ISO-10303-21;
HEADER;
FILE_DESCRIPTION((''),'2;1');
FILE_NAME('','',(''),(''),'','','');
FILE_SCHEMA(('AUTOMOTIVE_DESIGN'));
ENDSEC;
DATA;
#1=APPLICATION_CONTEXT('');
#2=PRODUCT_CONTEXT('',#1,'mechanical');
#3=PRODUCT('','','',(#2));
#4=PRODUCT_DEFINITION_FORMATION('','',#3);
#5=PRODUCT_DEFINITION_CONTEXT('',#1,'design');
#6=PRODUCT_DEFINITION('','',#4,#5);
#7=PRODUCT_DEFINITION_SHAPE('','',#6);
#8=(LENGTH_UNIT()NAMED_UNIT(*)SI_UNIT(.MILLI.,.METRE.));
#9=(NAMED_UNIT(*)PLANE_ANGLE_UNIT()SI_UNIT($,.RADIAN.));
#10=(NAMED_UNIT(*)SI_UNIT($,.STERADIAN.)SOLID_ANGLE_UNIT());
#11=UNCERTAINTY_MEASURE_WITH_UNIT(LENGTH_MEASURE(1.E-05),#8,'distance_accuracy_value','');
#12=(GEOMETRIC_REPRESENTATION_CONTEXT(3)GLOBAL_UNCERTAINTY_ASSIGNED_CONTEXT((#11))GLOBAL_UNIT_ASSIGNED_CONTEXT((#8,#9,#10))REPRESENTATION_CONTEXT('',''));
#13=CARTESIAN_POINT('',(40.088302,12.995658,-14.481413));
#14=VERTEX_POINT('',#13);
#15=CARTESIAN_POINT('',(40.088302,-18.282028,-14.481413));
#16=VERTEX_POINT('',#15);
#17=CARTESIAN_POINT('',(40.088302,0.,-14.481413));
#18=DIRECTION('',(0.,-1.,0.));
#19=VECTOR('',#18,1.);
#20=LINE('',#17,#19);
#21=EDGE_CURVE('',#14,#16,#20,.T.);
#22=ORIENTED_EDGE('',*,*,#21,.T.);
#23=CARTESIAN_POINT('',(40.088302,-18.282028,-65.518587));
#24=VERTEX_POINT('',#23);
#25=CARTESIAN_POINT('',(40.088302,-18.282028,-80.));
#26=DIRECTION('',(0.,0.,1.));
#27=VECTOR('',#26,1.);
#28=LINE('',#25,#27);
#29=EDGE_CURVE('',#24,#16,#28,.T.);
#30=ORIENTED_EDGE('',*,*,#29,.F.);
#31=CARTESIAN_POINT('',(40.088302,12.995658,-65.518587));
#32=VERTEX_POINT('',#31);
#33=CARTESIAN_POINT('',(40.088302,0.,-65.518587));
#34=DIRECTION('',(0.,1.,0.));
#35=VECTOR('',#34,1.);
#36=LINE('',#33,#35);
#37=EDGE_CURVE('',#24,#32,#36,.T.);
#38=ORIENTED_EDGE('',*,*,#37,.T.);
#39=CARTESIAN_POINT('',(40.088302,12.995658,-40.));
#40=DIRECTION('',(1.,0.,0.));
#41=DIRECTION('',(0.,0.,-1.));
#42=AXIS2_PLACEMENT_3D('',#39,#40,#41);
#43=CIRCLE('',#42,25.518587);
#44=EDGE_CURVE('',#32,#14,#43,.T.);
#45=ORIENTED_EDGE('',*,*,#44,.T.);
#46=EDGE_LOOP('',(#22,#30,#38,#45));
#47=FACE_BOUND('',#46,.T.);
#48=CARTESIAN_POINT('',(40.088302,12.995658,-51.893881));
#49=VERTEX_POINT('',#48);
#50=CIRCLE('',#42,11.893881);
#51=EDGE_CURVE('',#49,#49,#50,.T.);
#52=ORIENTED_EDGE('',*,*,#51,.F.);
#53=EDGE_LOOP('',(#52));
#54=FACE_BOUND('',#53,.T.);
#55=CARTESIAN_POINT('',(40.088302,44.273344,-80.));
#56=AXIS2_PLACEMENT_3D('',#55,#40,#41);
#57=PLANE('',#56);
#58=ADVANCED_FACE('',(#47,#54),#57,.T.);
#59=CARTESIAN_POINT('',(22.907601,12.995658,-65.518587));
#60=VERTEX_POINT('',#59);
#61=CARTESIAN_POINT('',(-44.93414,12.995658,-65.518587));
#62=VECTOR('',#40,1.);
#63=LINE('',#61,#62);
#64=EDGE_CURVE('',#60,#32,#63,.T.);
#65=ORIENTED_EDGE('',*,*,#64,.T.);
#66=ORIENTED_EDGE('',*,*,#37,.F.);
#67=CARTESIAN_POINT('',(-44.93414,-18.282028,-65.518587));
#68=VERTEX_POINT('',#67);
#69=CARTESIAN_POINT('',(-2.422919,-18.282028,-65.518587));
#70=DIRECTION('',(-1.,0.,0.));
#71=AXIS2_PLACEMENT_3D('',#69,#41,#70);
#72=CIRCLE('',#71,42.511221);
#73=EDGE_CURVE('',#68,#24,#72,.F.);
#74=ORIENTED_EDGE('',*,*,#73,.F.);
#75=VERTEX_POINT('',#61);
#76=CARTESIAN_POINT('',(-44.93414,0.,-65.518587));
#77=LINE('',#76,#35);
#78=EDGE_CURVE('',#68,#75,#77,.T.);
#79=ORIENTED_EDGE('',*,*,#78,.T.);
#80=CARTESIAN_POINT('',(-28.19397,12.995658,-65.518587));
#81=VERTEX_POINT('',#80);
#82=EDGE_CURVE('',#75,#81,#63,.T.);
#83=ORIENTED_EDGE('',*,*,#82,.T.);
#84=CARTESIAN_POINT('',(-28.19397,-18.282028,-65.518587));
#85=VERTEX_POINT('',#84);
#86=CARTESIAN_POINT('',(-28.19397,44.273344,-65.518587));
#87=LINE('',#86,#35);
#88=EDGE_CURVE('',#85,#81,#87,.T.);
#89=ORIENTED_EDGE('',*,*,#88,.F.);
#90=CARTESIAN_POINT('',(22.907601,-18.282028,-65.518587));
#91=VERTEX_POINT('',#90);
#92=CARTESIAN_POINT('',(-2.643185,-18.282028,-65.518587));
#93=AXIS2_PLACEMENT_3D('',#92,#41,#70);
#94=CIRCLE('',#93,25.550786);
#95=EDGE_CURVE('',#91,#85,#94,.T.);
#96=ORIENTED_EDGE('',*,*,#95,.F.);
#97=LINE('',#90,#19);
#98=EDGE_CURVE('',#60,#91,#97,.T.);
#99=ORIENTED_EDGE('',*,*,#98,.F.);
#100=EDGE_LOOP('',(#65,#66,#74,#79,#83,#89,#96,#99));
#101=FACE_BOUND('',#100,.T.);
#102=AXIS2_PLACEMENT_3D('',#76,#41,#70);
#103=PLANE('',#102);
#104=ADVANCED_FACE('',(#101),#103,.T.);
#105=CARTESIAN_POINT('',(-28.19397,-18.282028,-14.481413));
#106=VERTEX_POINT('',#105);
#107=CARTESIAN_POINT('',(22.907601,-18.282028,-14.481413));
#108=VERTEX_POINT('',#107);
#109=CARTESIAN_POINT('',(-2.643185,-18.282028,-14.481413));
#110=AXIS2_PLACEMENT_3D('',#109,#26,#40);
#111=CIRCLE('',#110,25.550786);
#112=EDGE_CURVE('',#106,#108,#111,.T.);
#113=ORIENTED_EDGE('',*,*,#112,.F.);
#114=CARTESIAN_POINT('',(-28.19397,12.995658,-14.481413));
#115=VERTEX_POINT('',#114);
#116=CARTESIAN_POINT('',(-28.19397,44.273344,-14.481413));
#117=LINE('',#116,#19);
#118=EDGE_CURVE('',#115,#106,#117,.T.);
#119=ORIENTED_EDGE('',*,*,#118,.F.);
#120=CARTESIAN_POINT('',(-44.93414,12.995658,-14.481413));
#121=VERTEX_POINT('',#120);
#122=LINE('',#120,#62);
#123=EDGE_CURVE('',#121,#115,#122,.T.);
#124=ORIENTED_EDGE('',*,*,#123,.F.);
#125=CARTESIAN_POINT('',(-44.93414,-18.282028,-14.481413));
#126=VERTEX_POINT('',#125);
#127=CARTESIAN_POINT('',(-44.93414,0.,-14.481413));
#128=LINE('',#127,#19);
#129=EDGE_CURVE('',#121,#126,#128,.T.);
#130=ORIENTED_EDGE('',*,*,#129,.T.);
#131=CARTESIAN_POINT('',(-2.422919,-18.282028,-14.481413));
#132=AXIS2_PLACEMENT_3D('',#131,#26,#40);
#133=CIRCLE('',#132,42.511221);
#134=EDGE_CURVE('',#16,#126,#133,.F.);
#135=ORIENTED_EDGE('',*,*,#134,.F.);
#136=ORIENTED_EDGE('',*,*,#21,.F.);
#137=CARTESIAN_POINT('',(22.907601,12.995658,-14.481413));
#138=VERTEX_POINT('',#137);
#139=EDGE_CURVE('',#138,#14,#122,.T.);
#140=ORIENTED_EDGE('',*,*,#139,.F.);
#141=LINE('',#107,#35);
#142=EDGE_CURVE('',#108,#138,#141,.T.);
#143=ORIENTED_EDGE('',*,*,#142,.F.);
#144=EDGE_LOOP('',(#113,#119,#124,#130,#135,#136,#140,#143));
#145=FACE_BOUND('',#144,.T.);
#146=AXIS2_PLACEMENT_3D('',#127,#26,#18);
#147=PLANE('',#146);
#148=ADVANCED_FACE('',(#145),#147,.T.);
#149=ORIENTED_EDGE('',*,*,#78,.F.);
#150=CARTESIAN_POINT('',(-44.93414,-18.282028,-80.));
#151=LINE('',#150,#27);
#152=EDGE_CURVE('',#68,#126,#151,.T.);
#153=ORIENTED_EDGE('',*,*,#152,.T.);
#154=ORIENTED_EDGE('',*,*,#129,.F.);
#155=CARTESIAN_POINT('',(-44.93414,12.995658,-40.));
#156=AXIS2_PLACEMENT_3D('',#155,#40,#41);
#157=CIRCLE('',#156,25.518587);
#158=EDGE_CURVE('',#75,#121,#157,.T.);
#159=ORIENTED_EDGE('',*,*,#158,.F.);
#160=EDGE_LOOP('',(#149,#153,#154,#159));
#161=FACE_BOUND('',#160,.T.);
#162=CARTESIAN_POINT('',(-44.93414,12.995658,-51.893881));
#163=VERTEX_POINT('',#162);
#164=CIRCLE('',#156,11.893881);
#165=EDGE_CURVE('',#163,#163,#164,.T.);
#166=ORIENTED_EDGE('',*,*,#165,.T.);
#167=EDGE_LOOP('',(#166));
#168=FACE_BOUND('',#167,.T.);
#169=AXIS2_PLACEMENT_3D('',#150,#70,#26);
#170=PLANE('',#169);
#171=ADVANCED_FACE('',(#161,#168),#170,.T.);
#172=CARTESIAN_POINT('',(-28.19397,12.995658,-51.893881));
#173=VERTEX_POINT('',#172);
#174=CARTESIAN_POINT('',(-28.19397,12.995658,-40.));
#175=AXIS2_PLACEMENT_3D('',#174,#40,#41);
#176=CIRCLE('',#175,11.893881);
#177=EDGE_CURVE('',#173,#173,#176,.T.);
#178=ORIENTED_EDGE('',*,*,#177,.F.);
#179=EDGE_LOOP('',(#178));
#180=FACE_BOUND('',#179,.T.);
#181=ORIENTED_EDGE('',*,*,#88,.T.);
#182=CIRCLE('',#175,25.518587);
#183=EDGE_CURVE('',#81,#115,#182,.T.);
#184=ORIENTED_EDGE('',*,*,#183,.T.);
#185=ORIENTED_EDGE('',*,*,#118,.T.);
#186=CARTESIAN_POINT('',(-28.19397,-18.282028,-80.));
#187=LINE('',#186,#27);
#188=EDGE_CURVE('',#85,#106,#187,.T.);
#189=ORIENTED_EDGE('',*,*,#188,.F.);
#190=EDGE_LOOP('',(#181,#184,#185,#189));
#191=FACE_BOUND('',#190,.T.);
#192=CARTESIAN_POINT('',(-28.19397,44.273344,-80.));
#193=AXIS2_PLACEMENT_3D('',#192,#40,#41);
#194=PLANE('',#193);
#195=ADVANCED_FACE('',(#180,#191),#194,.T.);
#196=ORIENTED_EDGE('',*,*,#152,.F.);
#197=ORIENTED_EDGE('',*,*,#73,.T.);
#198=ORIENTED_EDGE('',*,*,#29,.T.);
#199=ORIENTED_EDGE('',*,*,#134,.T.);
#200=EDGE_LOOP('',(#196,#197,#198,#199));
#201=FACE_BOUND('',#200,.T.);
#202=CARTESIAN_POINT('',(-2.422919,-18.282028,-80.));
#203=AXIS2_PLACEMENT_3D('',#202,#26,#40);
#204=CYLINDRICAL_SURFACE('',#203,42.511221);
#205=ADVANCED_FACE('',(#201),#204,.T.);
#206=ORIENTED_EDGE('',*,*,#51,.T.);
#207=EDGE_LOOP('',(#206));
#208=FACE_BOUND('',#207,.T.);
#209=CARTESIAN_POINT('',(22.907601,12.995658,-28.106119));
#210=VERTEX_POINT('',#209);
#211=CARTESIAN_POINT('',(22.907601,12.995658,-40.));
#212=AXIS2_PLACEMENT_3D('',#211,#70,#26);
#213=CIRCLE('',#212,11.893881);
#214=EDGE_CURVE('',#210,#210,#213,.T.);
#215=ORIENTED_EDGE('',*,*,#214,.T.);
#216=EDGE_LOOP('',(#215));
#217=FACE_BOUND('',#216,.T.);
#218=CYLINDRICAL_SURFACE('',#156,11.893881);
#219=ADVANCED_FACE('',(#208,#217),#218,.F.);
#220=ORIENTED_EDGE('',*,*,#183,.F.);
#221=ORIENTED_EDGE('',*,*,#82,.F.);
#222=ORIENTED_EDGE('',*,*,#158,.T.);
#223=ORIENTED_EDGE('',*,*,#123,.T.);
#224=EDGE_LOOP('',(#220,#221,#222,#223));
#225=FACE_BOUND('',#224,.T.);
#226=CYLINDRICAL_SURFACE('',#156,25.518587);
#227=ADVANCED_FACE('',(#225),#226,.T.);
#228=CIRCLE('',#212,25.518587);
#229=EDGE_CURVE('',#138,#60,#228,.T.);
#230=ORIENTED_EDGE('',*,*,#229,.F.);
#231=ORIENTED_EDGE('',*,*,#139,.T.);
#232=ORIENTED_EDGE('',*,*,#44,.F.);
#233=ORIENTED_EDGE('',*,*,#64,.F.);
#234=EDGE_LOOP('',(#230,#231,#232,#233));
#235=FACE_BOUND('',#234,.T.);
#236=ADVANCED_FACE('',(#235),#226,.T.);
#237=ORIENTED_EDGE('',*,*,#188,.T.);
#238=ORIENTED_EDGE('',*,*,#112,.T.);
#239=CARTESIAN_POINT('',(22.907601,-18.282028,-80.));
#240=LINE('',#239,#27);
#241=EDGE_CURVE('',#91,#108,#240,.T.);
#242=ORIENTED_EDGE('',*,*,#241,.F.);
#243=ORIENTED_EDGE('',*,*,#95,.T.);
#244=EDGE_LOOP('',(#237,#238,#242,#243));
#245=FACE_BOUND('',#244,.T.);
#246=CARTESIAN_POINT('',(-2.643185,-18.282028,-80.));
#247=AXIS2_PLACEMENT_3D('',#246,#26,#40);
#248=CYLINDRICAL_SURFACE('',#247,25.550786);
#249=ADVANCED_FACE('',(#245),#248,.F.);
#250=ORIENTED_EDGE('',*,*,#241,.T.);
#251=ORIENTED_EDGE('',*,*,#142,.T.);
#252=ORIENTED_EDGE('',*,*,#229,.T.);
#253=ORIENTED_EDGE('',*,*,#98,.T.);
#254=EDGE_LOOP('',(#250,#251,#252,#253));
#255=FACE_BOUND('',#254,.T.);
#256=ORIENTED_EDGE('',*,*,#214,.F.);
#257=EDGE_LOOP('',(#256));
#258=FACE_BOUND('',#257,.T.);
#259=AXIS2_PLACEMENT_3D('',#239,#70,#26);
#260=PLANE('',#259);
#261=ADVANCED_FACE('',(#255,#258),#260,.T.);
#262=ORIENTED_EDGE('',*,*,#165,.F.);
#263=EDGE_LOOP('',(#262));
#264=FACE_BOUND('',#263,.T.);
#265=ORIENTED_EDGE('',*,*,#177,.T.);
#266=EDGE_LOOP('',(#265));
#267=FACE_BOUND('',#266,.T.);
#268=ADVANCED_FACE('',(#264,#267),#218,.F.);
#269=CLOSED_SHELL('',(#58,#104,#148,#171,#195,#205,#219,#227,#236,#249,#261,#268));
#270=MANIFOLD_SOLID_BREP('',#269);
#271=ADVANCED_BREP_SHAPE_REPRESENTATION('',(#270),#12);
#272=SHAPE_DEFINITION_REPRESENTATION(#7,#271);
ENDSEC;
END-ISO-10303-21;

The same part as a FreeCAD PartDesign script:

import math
import FreeCAD as App
import Part
import Sketcher

doc = App.newDocument("Part")
body = doc.addObject("PartDesign::Body", "Body")

# Sketch on XY plane
sketch1 = doc.addObject("Sketcher::SketchObject", "Sketch")
body.addObject(sketch1)
sketch1.AttachmentSupport = (doc.XY_Plane, [""])
sketch1.MapMode = "FlatFace"
sketch1.addGeometry([
    Part.LineSegment(App.Vector(40, -18, 0), App.Vector(40, 44, 0)),  # 0
    Part.LineSegment(App.Vector(40, 44, 0), App.Vector(23, 44, 0)),  # 1
    Part.LineSegment(App.Vector(23, 44, 0), App.Vector(23, -18, 0)),  # 2
    Part.ArcOfCircle(Part.Circle(App.Vector(-3, -18, 0), App.Vector(0, 0, 1), 26), math.radians(180), math.radians(360)),  # 3
    Part.LineSegment(App.Vector(-28, -18, 0), App.Vector(-28, 44, 0)),  # 4
    Part.LineSegment(App.Vector(-28, 44, 0), App.Vector(-45, 44, 0)),  # 5
    Part.LineSegment(App.Vector(-45, 44, 0), App.Vector(-45, -18, 0)),  # 6
    Part.ArcOfCircle(Part.Circle(App.Vector(-2, -18, 0), App.Vector(0, 0, 1), 43), math.radians(180), math.radians(360)),  # 7
], False)
sketch1.addConstraint([
    Sketcher.Constraint("Coincident", 0, 2, 1, 1),
    Sketcher.Constraint("Coincident", 1, 2, 2, 1),
    Sketcher.Constraint("Tangent", 2, 2, 3, 2),
    Sketcher.Constraint("Tangent", 3, 1, 4, 1),
    Sketcher.Constraint("Coincident", 4, 2, 5, 1),
    Sketcher.Constraint("Coincident", 5, 2, 6, 1),
    Sketcher.Constraint("Tangent", 6, 2, 7, 1),
    Sketcher.Constraint("Tangent", 7, 2, 0, 1),
    Sketcher.Constraint("Vertical", 0),
    Sketcher.Constraint("Horizontal", 1),
    Sketcher.Constraint("Vertical", 2),
    Sketcher.Constraint("Vertical", 4),
    Sketcher.Constraint("Horizontal", 5),
    Sketcher.Constraint("Vertical", 6),
    Sketcher.Constraint("Horizontal", 3, 3, 7, 3),
    Sketcher.Constraint("Horizontal", 1, 2, 4, 2),
    Sketcher.Constraint("Radius", 7, 42.511221),
    Sketcher.Constraint("DistanceX", 1, 2, 1, 1, 17.180701),
    Sketcher.Constraint("Radius", 3, 25.550786),
    Sketcher.Constraint("DistanceY", 0, 1, 0, 2, 62.555372),
    Sketcher.Constraint("DistanceX", -1, 1, 0, 2, 40.088302),
    Sketcher.Constraint("DistanceY", 3, 3, -1, 1, 18.282028),
])
pad1 = doc.addObject("PartDesign::Pad", "Pad")
body.addObject(pad1)
pad1.Profile = sketch1
pad1.Length = 80
pad1.Reversed = True

# Sketch on YZ plane
sketch2 = doc.addObject("Sketcher::SketchObject", "Sketch001")
body.addObject(sketch2)
sketch2.AttachmentSupport = (doc.YZ_Plane, [""])
sketch2.MapMode = "FlatFace"
sketch2.AttachmentOffset = App.Placement(App.Vector(0, 0, 40.088302), App.Rotation())
sketch2.addGeometry([
    Part.LineSegment(App.Vector(-18, -14, 0), App.Vector(13, -14, 0)),  # 0
    Part.ArcOfCircle(Part.Circle(App.Vector(13, -40, 0), App.Vector(0, 0, 1), 26), math.radians(-90), math.radians(90)),  # 1
    Part.LineSegment(App.Vector(13, -66, 0), App.Vector(-18, -66, 0)),  # 2
    Part.LineSegment(App.Vector(-18, -66, 0), App.Vector(-18, -80, 0)),  # 3
    Part.LineSegment(App.Vector(-18, -80, 0), App.Vector(44, -80, 0)),  # 4
    Part.LineSegment(App.Vector(44, -80, 0), App.Vector(44, 0, 0)),  # 5
    Part.LineSegment(App.Vector(44, 0, 0), App.Vector(-18, 0, 0)),  # 6
    Part.LineSegment(App.Vector(-18, 0, 0), App.Vector(-18, -14, 0)),  # 7
], False)
sketch2.addConstraint([
    Sketcher.Constraint("Tangent", 0, 2, 1, 2),
    Sketcher.Constraint("Tangent", 1, 1, 2, 1),
    Sketcher.Constraint("Coincident", 2, 2, 3, 1),
    Sketcher.Constraint("Coincident", 3, 2, 4, 1),
    Sketcher.Constraint("Coincident", 4, 2, 5, 1),
    Sketcher.Constraint("Coincident", 5, 2, 6, 1),
    Sketcher.Constraint("Coincident", 6, 2, 7, 1),
    Sketcher.Constraint("Coincident", 7, 2, 0, 1),
    Sketcher.Constraint("Horizontal", 0),
    Sketcher.Constraint("Horizontal", 2),
    Sketcher.Constraint("Vertical", 3),
    Sketcher.Constraint("Horizontal", 4),
    Sketcher.Constraint("Vertical", 5),
    Sketcher.Constraint("Horizontal", 6),
    Sketcher.Constraint("Vertical", 7),
    Sketcher.Constraint("PointOnObject", 5, 2, -1),
    Sketcher.Constraint("Vertical", 3, 2, 6, 2),
    Sketcher.Constraint("Equal", 3, 7),
    Sketcher.Constraint("DistanceY", 5, 1, 5, 2, 80.0),
    Sketcher.Constraint("Radius", 1, 25.518587),
    Sketcher.Constraint("DistanceX", 4, 1, 4, 2, 62.555372),
    Sketcher.Constraint("DistanceX", 0, 1, 0, 2, 31.277686),
    Sketcher.Constraint("DistanceX", -1, 1, 1, 3, 12.995658),
])
pocket1 = doc.addObject("PartDesign::Pocket", "Pocket")
body.addObject(pocket1)
pocket1.Profile = sketch2
pocket1.Type = "ThroughAll"

# Sketch on XZ plane
sketch3 = doc.addObject("Sketcher::SketchObject", "Sketch002")
body.addObject(sketch3)
sketch3.AttachmentSupport = (doc.XZ_Plane, [""])
sketch3.MapMode = "FlatFace"
sketch3.addGeometry([
    Part.LineSegment(App.Vector(-45, -14, 0), App.Vector(-45, 0, 0)),  # 0
    Part.LineSegment(App.Vector(-45, 0, 0), App.Vector(40, 0, 0)),  # 1
    Part.LineSegment(App.Vector(40, 0, 0), App.Vector(40, -14, 0)),  # 2
    Part.LineSegment(App.Vector(40, -14, 0), App.Vector(-45, -14, 0)),  # 3
    Part.LineSegment(App.Vector(-45, -80, 0), App.Vector(-45, -66, 0)),  # 4
    Part.LineSegment(App.Vector(-45, -66, 0), App.Vector(40, -66, 0)),  # 5
    Part.LineSegment(App.Vector(40, -66, 0), App.Vector(40, -80, 0)),  # 6
    Part.LineSegment(App.Vector(40, -80, 0), App.Vector(-45, -80, 0)),  # 7
], False)
sketch3.addConstraint([
    Sketcher.Constraint("Coincident", 0, 2, 1, 1),
    Sketcher.Constraint("Coincident", 1, 2, 2, 1),
    Sketcher.Constraint("Coincident", 2, 2, 3, 1),
    Sketcher.Constraint("Coincident", 3, 2, 0, 1),
    Sketcher.Constraint("Coincident", 4, 2, 5, 1),
    Sketcher.Constraint("Coincident", 5, 2, 6, 1),
    Sketcher.Constraint("Coincident", 6, 2, 7, 1),
    Sketcher.Constraint("Coincident", 7, 2, 4, 1),
    Sketcher.Constraint("Vertical", 0),
    Sketcher.Constraint("Horizontal", 1),
    Sketcher.Constraint("Vertical", 2),
    Sketcher.Constraint("Horizontal", 3),
    Sketcher.Constraint("Vertical", 4),
    Sketcher.Constraint("Horizontal", 5),
    Sketcher.Constraint("Vertical", 6),
    Sketcher.Constraint("Horizontal", 7),
    Sketcher.Constraint("PointOnObject", 0, 2, -1),
    Sketcher.Constraint("Vertical", 3, 2, 4, 2),
    Sketcher.Constraint("Vertical", 2, 2, 5, 2),
    Sketcher.Constraint("Equal", 2, 4),
    Sketcher.Constraint("DistanceY", 6, 2, -1, 1, 80.0),
    Sketcher.Constraint("DistanceX", -1, 1, 1, 2, 40.088302),
    Sketcher.Constraint("DistanceX", 1, 1, 1, 2, 85.022442),
    Sketcher.Constraint("DistanceY", 0, 1, 0, 2, 14.481413),
])
pocket2 = doc.addObject("PartDesign::Pocket", "Pocket001")
body.addObject(pocket2)
pocket2.Profile = sketch3
pocket2.Type = "ThroughAll"
pocket2.Reversed = True

# Sketch on YZ plane
sketch4 = doc.addObject("Sketcher::SketchObject", "Sketch003")
body.addObject(sketch4)
sketch4.AttachmentSupport = (doc.YZ_Plane, [""])
sketch4.MapMode = "FlatFace"
sketch4.AttachmentOffset = App.Placement(App.Vector(0, 0, 40.088302), App.Rotation())
sketch4.addGeometry(Part.Circle(App.Vector(13, -40, 0), App.Vector(0, 0, 1), 12), False)
sketch4.addConstraint([
    Sketcher.Constraint("DistanceY", 0, 3, -1, 1, 40.0),
    Sketcher.Constraint("Diameter", 0, 23.787762),
    Sketcher.Constraint("DistanceX", -1, 1, 0, 3, 12.995658),
])
pocket3 = doc.addObject("PartDesign::Pocket", "Pocket002")
body.addObject(pocket3)
pocket3.Profile = sketch4
pocket3.Type = "ThroughAll"

doc.recompute()
